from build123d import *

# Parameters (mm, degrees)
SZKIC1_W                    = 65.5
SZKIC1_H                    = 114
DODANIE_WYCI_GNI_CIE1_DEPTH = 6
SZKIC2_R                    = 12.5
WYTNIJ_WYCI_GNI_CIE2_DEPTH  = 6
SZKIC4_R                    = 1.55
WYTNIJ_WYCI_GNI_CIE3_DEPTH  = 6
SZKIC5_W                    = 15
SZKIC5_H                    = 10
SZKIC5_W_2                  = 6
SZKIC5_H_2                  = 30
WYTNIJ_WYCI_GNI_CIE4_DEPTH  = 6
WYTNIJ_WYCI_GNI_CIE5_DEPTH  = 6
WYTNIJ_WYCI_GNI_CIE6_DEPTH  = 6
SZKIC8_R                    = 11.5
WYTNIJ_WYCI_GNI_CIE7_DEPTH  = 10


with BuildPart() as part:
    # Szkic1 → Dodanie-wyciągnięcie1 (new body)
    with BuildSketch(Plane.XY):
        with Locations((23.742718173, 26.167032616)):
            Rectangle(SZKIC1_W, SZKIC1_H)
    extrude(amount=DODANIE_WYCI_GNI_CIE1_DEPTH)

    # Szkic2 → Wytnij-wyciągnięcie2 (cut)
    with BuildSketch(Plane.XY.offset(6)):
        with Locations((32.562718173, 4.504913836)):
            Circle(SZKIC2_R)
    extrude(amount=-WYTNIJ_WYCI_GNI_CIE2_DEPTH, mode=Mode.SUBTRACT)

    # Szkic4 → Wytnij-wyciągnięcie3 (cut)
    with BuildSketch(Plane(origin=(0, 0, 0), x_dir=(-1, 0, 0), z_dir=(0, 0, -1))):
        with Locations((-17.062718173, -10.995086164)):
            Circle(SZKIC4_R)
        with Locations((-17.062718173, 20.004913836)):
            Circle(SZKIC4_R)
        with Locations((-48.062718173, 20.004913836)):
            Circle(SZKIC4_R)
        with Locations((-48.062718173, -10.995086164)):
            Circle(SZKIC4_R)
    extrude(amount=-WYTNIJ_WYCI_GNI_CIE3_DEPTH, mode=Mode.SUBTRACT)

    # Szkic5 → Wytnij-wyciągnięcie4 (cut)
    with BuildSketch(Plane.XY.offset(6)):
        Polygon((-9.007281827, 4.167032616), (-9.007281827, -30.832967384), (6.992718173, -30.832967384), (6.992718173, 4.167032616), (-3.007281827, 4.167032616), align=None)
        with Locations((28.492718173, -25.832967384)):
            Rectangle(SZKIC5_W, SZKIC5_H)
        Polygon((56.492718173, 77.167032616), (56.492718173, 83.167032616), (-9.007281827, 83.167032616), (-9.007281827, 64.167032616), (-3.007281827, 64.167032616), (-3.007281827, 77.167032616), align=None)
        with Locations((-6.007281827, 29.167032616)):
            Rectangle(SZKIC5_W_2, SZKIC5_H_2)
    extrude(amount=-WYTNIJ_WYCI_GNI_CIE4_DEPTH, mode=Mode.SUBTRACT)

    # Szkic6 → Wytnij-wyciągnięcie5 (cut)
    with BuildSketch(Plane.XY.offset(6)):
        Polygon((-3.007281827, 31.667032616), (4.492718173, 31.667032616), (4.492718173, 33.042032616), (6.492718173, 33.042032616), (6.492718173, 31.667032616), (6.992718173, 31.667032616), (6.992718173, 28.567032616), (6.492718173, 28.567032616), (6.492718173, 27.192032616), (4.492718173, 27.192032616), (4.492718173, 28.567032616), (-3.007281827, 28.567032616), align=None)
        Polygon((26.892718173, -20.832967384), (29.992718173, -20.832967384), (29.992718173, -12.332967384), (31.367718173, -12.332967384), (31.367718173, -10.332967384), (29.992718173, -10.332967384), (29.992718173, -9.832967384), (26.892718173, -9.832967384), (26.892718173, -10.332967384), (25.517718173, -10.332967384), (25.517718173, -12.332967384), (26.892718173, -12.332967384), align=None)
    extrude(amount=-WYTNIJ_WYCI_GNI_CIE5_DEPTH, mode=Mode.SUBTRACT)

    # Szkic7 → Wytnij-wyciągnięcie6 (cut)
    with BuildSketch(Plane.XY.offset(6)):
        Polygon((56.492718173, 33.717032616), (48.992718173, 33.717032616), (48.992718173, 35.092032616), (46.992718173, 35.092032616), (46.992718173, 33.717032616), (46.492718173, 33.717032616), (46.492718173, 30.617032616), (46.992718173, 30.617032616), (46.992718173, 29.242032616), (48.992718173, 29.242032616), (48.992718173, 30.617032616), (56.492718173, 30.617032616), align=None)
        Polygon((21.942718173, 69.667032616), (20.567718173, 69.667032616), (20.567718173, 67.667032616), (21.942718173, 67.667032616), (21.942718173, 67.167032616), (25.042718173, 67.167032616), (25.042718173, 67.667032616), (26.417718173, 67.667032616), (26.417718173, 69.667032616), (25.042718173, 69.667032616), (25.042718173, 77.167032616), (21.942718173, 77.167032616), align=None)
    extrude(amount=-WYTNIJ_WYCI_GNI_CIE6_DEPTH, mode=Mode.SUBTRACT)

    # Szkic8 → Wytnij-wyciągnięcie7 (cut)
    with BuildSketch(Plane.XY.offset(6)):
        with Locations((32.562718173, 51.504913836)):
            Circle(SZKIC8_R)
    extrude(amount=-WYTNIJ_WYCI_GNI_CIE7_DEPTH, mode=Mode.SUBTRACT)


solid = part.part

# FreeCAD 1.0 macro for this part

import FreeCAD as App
import Part
import Sketcher

V = App.Vector


def add_polygon(sketch, points):
    """Adds a closed chain of lines whose ends are joined by coincident constraints."""
    first, n = sketch.GeometryCount, len(points)
    for a, b in zip(points, points[1:] + points[:1]):
        sketch.addGeometry(Part.LineSegment(App.Vector(*a, 0), App.Vector(*b, 0)), False)
    for i in range(n):
        sketch.addConstraint(Sketcher.Constraint("Coincident", first + i, 2, first + (i + 1) % n, 1))

doc = App.newDocument("Part")
body = doc.addObject("PartDesign::Body", "Body")

# Sketch on XY plane
sketch1 = body.newObject("Sketcher::SketchObject", "Sketch")
sketch1.AttachmentSupport = (doc.getObject("XY_Plane"), [""])
sketch1.MapMode = "FlatFace"
add_polygon(sketch1, [(-9, 83), (-9, -31), (56, -31), (56, 83)])  # lines 0-3
sketch1.addConstraint([
    Sketcher.Constraint("Vertical", 0),
    Sketcher.Constraint("Horizontal", 1),
    Sketcher.Constraint("Vertical", 2),
    Sketcher.Constraint("Horizontal", 3),
    Sketcher.Constraint("DistanceY", 0, 2, 0, 1, 114.0),
    Sketcher.Constraint("DistanceX", 1, 1, 1, 2, 65.5),
    Sketcher.Constraint("DistanceX", 0, 2, -1, 1, 9.007282),
    Sketcher.Constraint("DistanceY", 0, 2, -1, 1, 30.832967),
])
pad1 = body.newObject("PartDesign::Pad", "Pad")
pad1.Profile = sketch1
pad1.Length = 6

# Sketch on XY plane
sketch2 = body.newObject("Sketcher::SketchObject", "Sketch001")
sketch2.AttachmentSupport = (doc.getObject("XY_Plane"), [""])
sketch2.MapMode = "FlatFace"
sketch2.AttachmentOffset = App.Placement(V(0, 0, 6), App.Rotation())
sketch2.addGeometry(Part.Circle(V(33, 5, 0), V(0, 0, 1), 12), False)
sketch2.addConstraint([
    Sketcher.Constraint("Diameter", 0, 25.0),
    Sketcher.Constraint("DistanceX", -1, 1, 0, 3, 32.562718),
    Sketcher.Constraint("DistanceY", -1, 1, 0, 3, 4.504914),
])
pocket1 = body.newObject("PartDesign::Pocket", "Pocket")
pocket1.Profile = sketch2
pocket1.Length = 6

# Sketch on XY plane
sketch3 = body.newObject("Sketcher::SketchObject", "Sketch002")
sketch3.AttachmentSupport = (doc.getObject("XY_Plane"), [""])
sketch3.MapMode = "FlatFace"
sketch3.addGeometry([
    Part.Circle(V(17.1, -11, 0), V(0, 0, 1), 1.6),
    Part.Circle(V(17.1, 20, 0), V(0, 0, 1), 1.6),
    Part.Circle(V(48.1, 20, 0), V(0, 0, 1), 1.6),
    Part.Circle(V(48.1, -11, 0), V(0, 0, 1), 1.6),
], False)
sketch3.addConstraint([
    Sketcher.Constraint("Equal", 0, 1),
    Sketcher.Constraint("Equal", 1, 2),
    Sketcher.Constraint("Equal", 2, 3),
    Sketcher.Constraint("Horizontal", 1, 3, 2, 3),
    Sketcher.Constraint("Horizontal", 0, 3, 3, 3),
    Sketcher.Constraint("Vertical", 0, 3, 1, 3),
    Sketcher.Constraint("Vertical", 2, 3, 3, 3),
    Sketcher.Constraint("Diameter", 0, 3.1),
    Sketcher.Constraint("DistanceY", 0, 3, 1, 3, 31.0),
    Sketcher.Constraint("DistanceX", 1, 3, 2, 3, 31.0),
    Sketcher.Constraint("DistanceX", -1, 1, 0, 3, 17.062718),
    Sketcher.Constraint("DistanceY", 0, 3, -1, 1, 10.995086),
])
pocket2 = body.newObject("PartDesign::Pocket", "Pocket001")
pocket2.Profile = sketch3
pocket2.Length = 6
pocket2.Reversed = True

# Sketch on XY plane
sketch4 = body.newObject("Sketcher::SketchObject", "Sketch003")
sketch4.AttachmentSupport = (doc.getObject("XY_Plane"), [""])
sketch4.MapMode = "FlatFace"
sketch4.AttachmentOffset = App.Placement(V(0, 0, 6), App.Rotation())
add_polygon(sketch4, [(-9, 4), (-9, -31), (7, -31), (7, 4)])  # lines 0-3
add_polygon(sketch4, [(21, -21), (21, -31), (36, -31), (36, -21)])  # lines 4-7
add_polygon(sketch4, [(56, 77), (56, 83), (-9, 83), (-9, 64), (-3, 64), (-3, 77)])  # lines 8-13
add_polygon(sketch4, [(-9, 44), (-9, 14), (-3, 14), (-3, 44)])  # lines 14-17
sketch4.addConstraint([
    Sketcher.Constraint("Vertical", 0),
    Sketcher.Constraint("Horizontal", 1),
    Sketcher.Constraint("Vertical", 2),
    Sketcher.Constraint("Horizontal", 3),
    Sketcher.Constraint("Vertical", 4),
    Sketcher.Constraint("Horizontal", 5),
    Sketcher.Constraint("Vertical", 6),
    Sketcher.Constraint("Horizontal", 7),
    Sketcher.Constraint("Vertical", 8),
    Sketcher.Constraint("Horizontal", 9),
    Sketcher.Constraint("Vertical", 10),
    Sketcher.Constraint("Horizontal", 11),
    Sketcher.Constraint("Vertical", 12),
    Sketcher.Constraint("Horizontal", 13),
    Sketcher.Constraint("Vertical", 14),
    Sketcher.Constraint("Horizontal", 15),
    Sketcher.Constraint("Vertical", 16),
    Sketcher.Constraint("Horizontal", 17),
    Sketcher.Constraint("Horizontal", 1, 2, 4, 2),
    Sketcher.Constraint("Vertical", 3, 2, 9, 2),
    Sketcher.Constraint("Vertical", 10, 2, 14, 2),
    Sketcher.Constraint("Vertical", 12, 2, 15, 2),
    Sketcher.Constraint("Equal", 17, 8),
    Sketcher.Constraint("DistanceX", 1, 1, 1, 2, 16.0),
    Sketcher.Constraint("DistanceX", 5, 1, 5, 2, 15.0),
    Sketcher.Constraint("DistanceX", 11, 1, 11, 2, 6.0),
    Sketcher.Constraint("DistanceY", 0, 2, 0, 1, 35.0),
    Sketcher.Constraint("DistanceY", 4, 2, 4, 1, 10.0),
    Sketcher.Constraint("DistanceY", 10, 2, 10, 1, 19.0),
    Sketcher.Constraint("DistanceY", 14, 2, 14, 1, 30.0),
    Sketcher.Constraint("DistanceX", 9, 2, 9, 1, 65.5),
    Sketcher.Constraint("DistanceX", 1, 2, 4, 2, 14.0),
    Sketcher.Constraint("DistanceY", 2, 2, 8, 2, 79.0),
    Sketcher.Constraint("DistanceY", 3, 2, 14, 2, 10.0),
    Sketcher.Constraint("DistanceX", 0, 2, -1, 1, 9.007282),
    Sketcher.Constraint("DistanceY", 0, 2, -1, 1, 30.832967),
])
pocket3 = body.newObject("PartDesign::Pocket", "Pocket002")
pocket3.Profile = sketch4
pocket3.Length = 6

# Sketch on XY plane
sketch5 = body.newObject("Sketcher::SketchObject", "Sketch004")
sketch5.AttachmentSupport = (doc.getObject("XY_Plane"), [""])
sketch5.MapMode = "FlatFace"
sketch5.AttachmentOffset = App.Placement(V(0, 0, 6), App.Rotation())
add_polygon(sketch5, [(4.5, 31.7), (-3, 31.7), (-3, 28.6), (4.5, 28.6), (4.5, 27.2), (6.5, 27.2), (6.5, 28.6), (7, 28.6), (7, 31.7), (6.5, 31.7), (6.5, 33), (4.5, 33)])  # lines 0-11
add_polygon(sketch5, [(26.9, -20.8), (30, -20.8), (30, -12.3), (31.4, -12.3), (31.4, -10.3), (30, -10.3), (30, -9.8), (26.9, -9.8), (26.9, -10.3), (25.5, -10.3), (25.5, -12.3), (26.9, -12.3)])  # lines 12-23
sketch5.addConstraint([
    Sketcher.Constraint("Horizontal", 0),
    Sketcher.Constraint("Vertical", 1),
    Sketcher.Constraint("Horizontal", 2),
    Sketcher.Constraint("Vertical", 3),
    Sketcher.Constraint("Horizontal", 4),
    Sketcher.Constraint("Vertical", 5),
    Sketcher.Constraint("Horizontal", 6),
    Sketcher.Constraint("Vertical", 7),
    Sketcher.Constraint("Horizontal", 8),
    Sketcher.Constraint("Vertical", 9),
    Sketcher.Constraint("Horizontal", 10),
    Sketcher.Constraint("Vertical", 11),
    Sketcher.Constraint("Horizontal", 12),
    Sketcher.Constraint("Vertical", 13),
    Sketcher.Constraint("Horizontal", 14),
    Sketcher.Constraint("Vertical", 15),
    Sketcher.Constraint("Horizontal", 16),
    Sketcher.Constraint("Vertical", 17),
    Sketcher.Constraint("Horizontal", 18),
    Sketcher.Constraint("Vertical", 19),
    Sketcher.Constraint("Horizontal", 20),
    Sketcher.Constraint("Vertical", 21),
    Sketcher.Constraint("Horizontal", 22),
    Sketcher.Constraint("Vertical", 23),
    Sketcher.Constraint("Horizontal", 2, 2, 5, 2),
    Sketcher.Constraint("Horizontal", 0, 2, 7, 2),
    Sketcher.Constraint("Horizontal", 16, 2, 19, 2),
    Sketcher.Constraint("Horizontal", 14, 2, 21, 2),
    Sketcher.Constraint("Vertical", 5, 2, 8, 2),
    Sketcher.Constraint("Vertical", 3, 2, 10, 2),
    Sketcher.Constraint("Vertical", 13, 2, 16, 2),
    Sketcher.Constraint("Vertical", 19, 2, 22, 2),
    Sketcher.Constraint("Equal", 16, 20),
    Sketcher.Constraint("Equal", 18, 1),
    Sketcher.Constraint("Equal", 22, 3),
    Sketcher.Constraint("Equal", 5, 9),
    Sketcher.Constraint("Equal", 10, 15),
    Sketcher.Constraint("Equal", 8, 17),
    Sketcher.Constraint("DistanceX", 4, 1, 4, 2, 2.0),
    Sketcher.Constraint("DistanceX", 0, 2, 0, 1, 7.5),
    Sketcher.Constraint("DistanceX", 6, 1, 6, 2, 0.5),
    Sketcher.Constraint("DistanceX", 12, 1, 12, 2, 3.1),
    Sketcher.Constraint("DistanceY", 13, 1, 13, 2, 8.5),
    Sketcher.Constraint("DistanceX", 6, 2, 12, 2, 23.0),
    Sketcher.Constraint("DistanceY", 12, 2, 6, 2, 49.4),
    Sketcher.Constraint("DistanceX", 14, 1, 14, 2, 1.375),
    Sketcher.Constraint("DistanceX", 0, 2, -1, 1, 3.007282),
    Sketcher.Constraint("DistanceY", -1, 1, 0, 2, 31.667033),
])
pocket4 = body.newObject("PartDesign::Pocket", "Pocket003")
pocket4.Profile = sketch5
pocket4.Length = 6

# Sketch on XY plane
sketch6 = body.newObject("Sketcher::SketchObject", "Sketch005")
sketch6.AttachmentSupport = (doc.getObject("XY_Plane"), [""])
sketch6.MapMode = "FlatFace"
sketch6.AttachmentOffset = App.Placement(V(0, 0, 6), App.Rotation())
add_polygon(sketch6, [(56.5, 33.7), (49, 33.7), (49, 35.1), (47, 35.1), (47, 33.7), (46.5, 33.7), (46.5, 30.6), (47, 30.6), (47, 29.2), (49, 29.2), (49, 30.6), (56.5, 30.6)])  # lines 0-11
add_polygon(sketch6, [(21.9, 69.7), (20.6, 69.7), (20.6, 67.7), (21.9, 67.7), (21.9, 67.2), (25, 67.2), (25, 67.7), (26.4, 67.7), (26.4, 69.7), (25, 69.7), (25, 77.2), (21.9, 77.2)])  # lines 12-23
sketch6.addConstraint([
    Sketcher.Constraint("Horizontal", 0),
    Sketcher.Constraint("Vertical", 1),
    Sketcher.Constraint("Horizontal", 2),
    Sketcher.Constraint("Vertical", 3),
    Sketcher.Constraint("Horizontal", 4),
    Sketcher.Constraint("Vertical", 5),
    Sketcher.Constraint("Horizontal", 6),
    Sketcher.Constraint("Vertical", 7),
    Sketcher.Constraint("Horizontal", 8),
    Sketcher.Constraint("Vertical", 9),
    Sketcher.Constraint("Horizontal", 10),
    Sketcher.Constraint("Vertical", 11),
    Sketcher.Constraint("Horizontal", 12),
    Sketcher.Constraint("Vertical", 13),
    Sketcher.Constraint("Horizontal", 14),
    Sketcher.Constraint("Vertical", 15),
    Sketcher.Constraint("Horizontal", 16),
    Sketcher.Constraint("Vertical", 17),
    Sketcher.Constraint("Horizontal", 18),
    Sketcher.Constraint("Vertical", 19),
    Sketcher.Constraint("Horizontal", 20),
    Sketcher.Constraint("Vertical", 21),
    Sketcher.Constraint("Horizontal", 22),
    Sketcher.Constraint("Vertical", 23),
    Sketcher.Constraint("Horizontal", 0, 2, 3, 2),
    Sketcher.Constraint("Horizontal", 6, 2, 9, 2),
    Sketcher.Constraint("Horizontal", 14, 2, 17, 2),
    Sketcher.Constraint("Horizontal", 12, 2, 19, 2),
    Sketcher.Constraint("Vertical", 3, 2, 6, 2),
    Sketcher.Constraint("Vertical", 1, 2, 8, 2),
    Sketcher.Constraint("Vertical", 17, 2, 20, 2),
    Sketcher.Constraint("Vertical", 15, 2, 22, 2),
    Sketcher.Constraint("Equal", 14, 18),
    Sketcher.Constraint("Equal", 20, 1),
    Sketcher.Constraint("Equal", 22, 5),
    Sketcher.Constraint("Equal", 3, 7),
    Sketcher.Constraint("Equal", 8, 13),
    Sketcher.Constraint("Equal", 6, 15),
    Sketcher.Constraint("Equal", 10, 21),
    Sketcher.Constraint("DistanceX", 2, 2, 2, 1, 2.0),
    Sketcher.Constraint("DistanceX", 0, 2, 0, 1, 7.5),
    Sketcher.Constraint("DistanceX", 4, 2, 4, 1, 0.5),
    Sketcher.Constraint("DistanceX", 16, 1, 16, 2, 3.1),
    Sketcher.Constraint("DistanceX", 12, 2, 12, 1, 1.375),
    Sketcher.Constraint("DistanceY", 4, 2, 12, 2, 35.95),
    Sketcher.Constraint("DistanceX", 14, 2, 2, 2, 25.05),
    Sketcher.Constraint("DistanceX", -1, 1, 0, 2, 48.992718),
    Sketcher.Constraint("DistanceY", -1, 1, 0, 2, 33.717033),
])
pocket5 = body.newObject("PartDesign::Pocket", "Pocket004")
pocket5.Profile = sketch6
pocket5.Length = 6

# Sketch on XY plane
sketch7 = body.newObject("Sketcher::SketchObject", "Sketch006")
sketch7.AttachmentSupport = (doc.getObject("XY_Plane"), [""])
sketch7.MapMode = "FlatFace"
sketch7.AttachmentOffset = App.Placement(V(0, 0, 6), App.Rotation())
sketch7.addGeometry(Part.Circle(V(33, 52, 0), V(0, 0, 1), 12), False)
sketch7.addConstraint([
    Sketcher.Constraint("Diameter", 0, 23.0),
    Sketcher.Constraint("DistanceX", -1, 1, 0, 3, 32.562718),
    Sketcher.Constraint("DistanceY", -1, 1, 0, 3, 51.504914),
])
pocket6 = body.newObject("PartDesign::Pocket", "Pocket005")
pocket6.Profile = sketch7
pocket6.Length = 10

doc.recompute()
